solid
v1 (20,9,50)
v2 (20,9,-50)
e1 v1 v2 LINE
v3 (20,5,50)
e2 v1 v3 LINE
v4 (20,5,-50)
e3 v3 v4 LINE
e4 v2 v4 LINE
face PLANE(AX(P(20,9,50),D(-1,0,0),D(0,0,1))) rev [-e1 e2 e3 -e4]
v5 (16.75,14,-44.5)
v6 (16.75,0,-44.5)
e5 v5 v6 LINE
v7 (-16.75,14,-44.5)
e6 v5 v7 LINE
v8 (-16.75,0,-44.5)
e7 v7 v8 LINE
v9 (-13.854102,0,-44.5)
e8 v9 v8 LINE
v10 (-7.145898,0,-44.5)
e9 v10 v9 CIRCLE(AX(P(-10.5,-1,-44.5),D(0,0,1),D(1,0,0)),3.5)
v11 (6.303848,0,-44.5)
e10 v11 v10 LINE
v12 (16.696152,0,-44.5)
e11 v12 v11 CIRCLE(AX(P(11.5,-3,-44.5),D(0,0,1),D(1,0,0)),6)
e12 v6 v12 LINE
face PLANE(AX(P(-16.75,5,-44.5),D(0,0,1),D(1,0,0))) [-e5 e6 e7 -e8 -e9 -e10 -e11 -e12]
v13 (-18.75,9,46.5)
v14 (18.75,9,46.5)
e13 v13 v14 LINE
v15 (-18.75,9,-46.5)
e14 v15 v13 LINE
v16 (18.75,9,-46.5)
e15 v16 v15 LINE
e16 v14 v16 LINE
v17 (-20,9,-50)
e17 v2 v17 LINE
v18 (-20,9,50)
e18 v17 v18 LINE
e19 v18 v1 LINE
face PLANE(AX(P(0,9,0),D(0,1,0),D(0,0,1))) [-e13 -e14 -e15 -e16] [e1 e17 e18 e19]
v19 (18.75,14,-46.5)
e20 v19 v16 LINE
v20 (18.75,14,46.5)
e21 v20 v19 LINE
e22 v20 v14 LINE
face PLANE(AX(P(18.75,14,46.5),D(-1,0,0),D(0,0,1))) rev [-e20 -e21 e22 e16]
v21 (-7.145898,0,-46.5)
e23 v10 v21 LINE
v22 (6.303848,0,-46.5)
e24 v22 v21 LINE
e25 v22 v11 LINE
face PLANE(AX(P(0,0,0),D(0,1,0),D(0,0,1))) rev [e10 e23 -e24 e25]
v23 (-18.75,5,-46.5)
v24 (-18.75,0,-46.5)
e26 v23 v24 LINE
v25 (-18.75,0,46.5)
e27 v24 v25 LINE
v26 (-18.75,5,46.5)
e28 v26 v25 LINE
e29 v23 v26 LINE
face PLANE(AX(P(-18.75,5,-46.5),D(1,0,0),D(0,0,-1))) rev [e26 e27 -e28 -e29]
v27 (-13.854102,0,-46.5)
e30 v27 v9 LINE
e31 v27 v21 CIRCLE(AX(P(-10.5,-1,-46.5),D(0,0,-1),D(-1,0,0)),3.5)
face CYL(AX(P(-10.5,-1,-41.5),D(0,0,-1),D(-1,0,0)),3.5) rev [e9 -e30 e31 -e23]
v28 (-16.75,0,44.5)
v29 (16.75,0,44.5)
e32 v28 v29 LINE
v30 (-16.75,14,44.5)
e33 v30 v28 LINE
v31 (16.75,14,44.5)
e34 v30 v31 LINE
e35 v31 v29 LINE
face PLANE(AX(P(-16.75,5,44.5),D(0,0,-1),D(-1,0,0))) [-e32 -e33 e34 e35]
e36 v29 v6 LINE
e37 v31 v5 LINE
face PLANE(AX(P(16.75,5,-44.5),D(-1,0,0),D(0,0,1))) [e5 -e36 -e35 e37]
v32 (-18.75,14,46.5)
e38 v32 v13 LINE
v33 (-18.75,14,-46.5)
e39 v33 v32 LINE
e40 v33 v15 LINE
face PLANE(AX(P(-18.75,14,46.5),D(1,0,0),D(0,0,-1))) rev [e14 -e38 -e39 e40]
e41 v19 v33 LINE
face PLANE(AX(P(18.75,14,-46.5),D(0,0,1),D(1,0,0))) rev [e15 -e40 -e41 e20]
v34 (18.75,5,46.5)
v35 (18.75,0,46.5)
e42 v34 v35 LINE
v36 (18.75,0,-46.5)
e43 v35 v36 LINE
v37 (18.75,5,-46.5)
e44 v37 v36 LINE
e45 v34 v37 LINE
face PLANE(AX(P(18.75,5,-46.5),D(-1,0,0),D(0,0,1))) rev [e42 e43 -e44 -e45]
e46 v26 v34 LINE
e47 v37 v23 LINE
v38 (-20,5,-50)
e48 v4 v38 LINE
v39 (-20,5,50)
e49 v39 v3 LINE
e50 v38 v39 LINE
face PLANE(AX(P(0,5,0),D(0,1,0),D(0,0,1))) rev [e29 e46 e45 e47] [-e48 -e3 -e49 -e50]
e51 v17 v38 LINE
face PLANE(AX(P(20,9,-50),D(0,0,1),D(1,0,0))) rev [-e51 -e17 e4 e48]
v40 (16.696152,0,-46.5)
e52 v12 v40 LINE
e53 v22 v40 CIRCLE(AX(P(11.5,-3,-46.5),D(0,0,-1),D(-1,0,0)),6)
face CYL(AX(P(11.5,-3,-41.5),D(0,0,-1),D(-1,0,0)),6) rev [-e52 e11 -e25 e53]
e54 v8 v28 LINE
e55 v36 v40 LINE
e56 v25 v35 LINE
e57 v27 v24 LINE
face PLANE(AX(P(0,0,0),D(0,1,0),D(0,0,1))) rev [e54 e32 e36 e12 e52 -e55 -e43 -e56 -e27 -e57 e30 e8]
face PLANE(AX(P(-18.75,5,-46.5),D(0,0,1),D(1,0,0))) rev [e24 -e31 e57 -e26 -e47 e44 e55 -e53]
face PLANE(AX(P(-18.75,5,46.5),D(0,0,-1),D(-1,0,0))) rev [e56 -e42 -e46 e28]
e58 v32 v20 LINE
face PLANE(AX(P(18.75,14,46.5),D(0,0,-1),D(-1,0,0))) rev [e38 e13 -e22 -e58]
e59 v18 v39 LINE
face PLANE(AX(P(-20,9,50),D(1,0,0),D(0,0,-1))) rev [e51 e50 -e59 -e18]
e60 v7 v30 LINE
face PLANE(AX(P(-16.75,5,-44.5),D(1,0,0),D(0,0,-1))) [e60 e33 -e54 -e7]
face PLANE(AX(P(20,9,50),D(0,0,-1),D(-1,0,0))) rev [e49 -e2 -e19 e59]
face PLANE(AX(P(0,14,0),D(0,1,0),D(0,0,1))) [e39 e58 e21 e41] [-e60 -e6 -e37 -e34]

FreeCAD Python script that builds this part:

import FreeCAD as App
import Part
import Sketcher

V = App.Vector
Q = App.Units.Quantity


def add_polygon(sketch, points):
    """Adds a closed chain of lines whose ends are joined by coincident constraints."""
    first, n = sketch.GeometryCount, len(points)
    for a, b in zip(points, points[1:] + points[:1]):
        sketch.addGeometry(Part.LineSegment(App.Vector(*a, 0), App.Vector(*b, 0)), False)
    for i in range(n):
        sketch.addConstraint(Sketcher.Constraint("Coincident", first + i, 2, first + (i + 1) % n, 1))

doc = App.newDocument("Part")
body = doc.addObject("PartDesign::Body", "Body")

sketch1 = doc.addObject("Sketcher::SketchObject", "Sketch")
body.addObject(sketch1)
sketch1.AttachmentSupport = (doc.XZ_Plane, [""])
sketch1.MapMode = "FlatFace"
add_polygon(sketch1, [(-19, -46), (-19, 46), (19, 46), (19, -46)])
add_polygon(sketch1, [(17, 44), (-17, 44), (-17, -44), (17, -44)])
sketch1.addConstraint([
    Sketcher.Constraint("Vertical", 0),
    Sketcher.Constraint("Horizontal", 1),
    Sketcher.Constraint("Vertical", 2),
    Sketcher.Constraint("Horizontal", 3),
    Sketcher.Constraint("Horizontal", 4),
    Sketcher.Constraint("Vertical", 5),
    Sketcher.Constraint("Horizontal", 6),
    Sketcher.Constraint("Vertical", 7),
    Sketcher.Constraint("Symmetric", 0, 2, 2, 2, -1, 1),
    Sketcher.Constraint("Symmetric", 4, 2, 6, 2, -1, 1),
    Sketcher.Constraint("DistanceY", 0, 1, 0, 2, Q("93 mm")),
    Sketcher.Constraint("DistanceY", 5, 2, 5, 1, Q("89 mm")),
    Sketcher.Constraint("DistanceX", 1, 1, 1, 2, Q("37.5 mm")),
    Sketcher.Constraint("DistanceX", 4, 2, 4, 1, Q("33.5 mm")),
])
pad1 = doc.addObject("PartDesign::Pad", "Pad")
body.addObject(pad1)
pad1.Profile = sketch1
pad1.Length = 5
pad1.Reversed = True

sketch2 = doc.addObject("Sketcher::SketchObject", "Sketch001")
body.addObject(sketch2)
sketch2.AttachmentSupport = (doc.XZ_Plane, [""])
sketch2.MapMode = "FlatFace"
sketch2.AttachmentOffset = App.Placement(V(0, 0, -5), App.Rotation())
add_polygon(sketch2, [(-20, -50), (-20, 50), (20, 50), (20, -50)])
add_polygon(sketch2, [(17, 44), (-17, 44), (-17, -44), (17, -44)])
sketch2.addConstraint([
    Sketcher.Constraint("Vertical", 0),
    Sketcher.Constraint("Horizontal", 1),
    Sketcher.Constraint("Vertical", 2),
    Sketcher.Constraint("Horizontal", 3),
    Sketcher.Constraint("Horizontal", 4),
    Sketcher.Constraint("Vertical", 5),
    Sketcher.Constraint("Horizontal", 6),
    Sketcher.Constraint("Vertical", 7),
    Sketcher.Constraint("Symmetric", 0, 2, 2, 2, -1, 1),
    Sketcher.Constraint("Symmetric", 4, 2, 6, 2, -1, 1),
    Sketcher.Constraint("DistanceX", 1, 1, 1, 2, Q("40 mm")),
    Sketcher.Constraint("DistanceY", 0, 1, 0, 2, Q("100 mm")),
    Sketcher.Constraint("DistanceY", 5, 2, 5, 1, Q("89 mm")),
    Sketcher.Constraint("DistanceX", 4, 2, 4, 1, Q("33.5 mm")),
])
pad2 = doc.addObject("PartDesign::Pad", "Pad001")
body.addObject(pad2)
pad2.Profile = sketch2
pad2.Length = 4
pad2.Reversed = True

sketch3 = doc.addObject("Sketcher::SketchObject", "Sketch002")
body.addObject(sketch3)
sketch3.AttachmentSupport = (doc.XZ_Plane, [""])
sketch3.MapMode = "FlatFace"
sketch3.AttachmentOffset = App.Placement(V(0, 0, -9), App.Rotation())
add_polygon(sketch3, [(-19, -46), (-19, 46), (19, 46), (19, -46)])
add_polygon(sketch3, [(17, 44), (-17, 44), (-17, -44), (17, -44)])
sketch3.addConstraint([
    Sketcher.Constraint("Vertical", 0),
    Sketcher.Constraint("Horizontal", 1),
    Sketcher.Constraint("Vertical", 2),
    Sketcher.Constraint("Horizontal", 3),
    Sketcher.Constraint("Horizontal", 4),
    Sketcher.Constraint("Vertical", 5),
    Sketcher.Constraint("Horizontal", 6),
    Sketcher.Constraint("Vertical", 7),
    Sketcher.Constraint("Symmetric", 0, 2, 2, 2, -1, 1),
    Sketcher.Constraint("Symmetric", 4, 2, 6, 2, -1, 1),
    Sketcher.Constraint("DistanceY", 0, 1, 0, 2, Q("93 mm")),
    Sketcher.Constraint("DistanceY", 5, 2, 5, 1, Q("89 mm")),
    Sketcher.Constraint("DistanceX", 1, 1, 1, 2, Q("37.5 mm")),
    Sketcher.Constraint("DistanceX", 4, 2, 4, 1, Q("33.5 mm")),
])
pad3 = doc.addObject("PartDesign::Pad", "Pad002")
body.addObject(pad3)
pad3.Profile = sketch3
pad3.Length = 5
pad3.Reversed = True

sketch4 = doc.addObject("Sketcher::SketchObject", "Sketch003")
body.addObject(sketch4)
sketch4.AttachmentSupport = (doc.XY_Plane, [""])
sketch4.MapMode = "FlatFace"
sketch4.AttachmentOffset = App.Placement(V(0, 0, -46.5), App.Rotation())
sketch4.addGeometry(Part.Circle(V(12, -3, 0), V(0, 0, 1), 6), False)
sketch4.addConstraint([
    Sketcher.Constraint("Diameter", 0, Q("12 mm")),
    Sketcher.Constraint("DistanceY", 0, 3, -1, 1, Q("3 mm")),
    Sketcher.Constraint("DistanceX", -1, 1, 0, 3, Q("11.5 mm")),
])
pocket1 = doc.addObject("PartDesign::Pocket", "Pocket")
body.addObject(pocket1)
pocket1.Profile = sketch4
pocket1.Length = 5
pocket1.Reversed = True

sketch5 = doc.addObject("Sketcher::SketchObject", "Sketch004")
body.addObject(sketch5)
sketch5.AttachmentSupport = (doc.XY_Plane, [""])
sketch5.MapMode = "FlatFace"
sketch5.AttachmentOffset = App.Placement(V(0, 0, -46.5), App.Rotation())
sketch5.addGeometry(Part.Circle(V(-10.5, -1, 0), V(0, 0, 1), 3.5), False)
sketch5.addConstraint([
    Sketcher.Constraint("Diameter", 0, Q("7 mm")),
    Sketcher.Constraint("DistanceY", 0, 3, -1, 1, Q("1 mm")),
    Sketcher.Constraint("DistanceX", 0, 3, -1, 1, Q("10.5 mm")),
])
pocket2 = doc.addObject("PartDesign::Pocket", "Pocket001")
body.addObject(pocket2)
pocket2.Profile = sketch5
pocket2.Length = 5
pocket2.Reversed = True

doc.recompute()
